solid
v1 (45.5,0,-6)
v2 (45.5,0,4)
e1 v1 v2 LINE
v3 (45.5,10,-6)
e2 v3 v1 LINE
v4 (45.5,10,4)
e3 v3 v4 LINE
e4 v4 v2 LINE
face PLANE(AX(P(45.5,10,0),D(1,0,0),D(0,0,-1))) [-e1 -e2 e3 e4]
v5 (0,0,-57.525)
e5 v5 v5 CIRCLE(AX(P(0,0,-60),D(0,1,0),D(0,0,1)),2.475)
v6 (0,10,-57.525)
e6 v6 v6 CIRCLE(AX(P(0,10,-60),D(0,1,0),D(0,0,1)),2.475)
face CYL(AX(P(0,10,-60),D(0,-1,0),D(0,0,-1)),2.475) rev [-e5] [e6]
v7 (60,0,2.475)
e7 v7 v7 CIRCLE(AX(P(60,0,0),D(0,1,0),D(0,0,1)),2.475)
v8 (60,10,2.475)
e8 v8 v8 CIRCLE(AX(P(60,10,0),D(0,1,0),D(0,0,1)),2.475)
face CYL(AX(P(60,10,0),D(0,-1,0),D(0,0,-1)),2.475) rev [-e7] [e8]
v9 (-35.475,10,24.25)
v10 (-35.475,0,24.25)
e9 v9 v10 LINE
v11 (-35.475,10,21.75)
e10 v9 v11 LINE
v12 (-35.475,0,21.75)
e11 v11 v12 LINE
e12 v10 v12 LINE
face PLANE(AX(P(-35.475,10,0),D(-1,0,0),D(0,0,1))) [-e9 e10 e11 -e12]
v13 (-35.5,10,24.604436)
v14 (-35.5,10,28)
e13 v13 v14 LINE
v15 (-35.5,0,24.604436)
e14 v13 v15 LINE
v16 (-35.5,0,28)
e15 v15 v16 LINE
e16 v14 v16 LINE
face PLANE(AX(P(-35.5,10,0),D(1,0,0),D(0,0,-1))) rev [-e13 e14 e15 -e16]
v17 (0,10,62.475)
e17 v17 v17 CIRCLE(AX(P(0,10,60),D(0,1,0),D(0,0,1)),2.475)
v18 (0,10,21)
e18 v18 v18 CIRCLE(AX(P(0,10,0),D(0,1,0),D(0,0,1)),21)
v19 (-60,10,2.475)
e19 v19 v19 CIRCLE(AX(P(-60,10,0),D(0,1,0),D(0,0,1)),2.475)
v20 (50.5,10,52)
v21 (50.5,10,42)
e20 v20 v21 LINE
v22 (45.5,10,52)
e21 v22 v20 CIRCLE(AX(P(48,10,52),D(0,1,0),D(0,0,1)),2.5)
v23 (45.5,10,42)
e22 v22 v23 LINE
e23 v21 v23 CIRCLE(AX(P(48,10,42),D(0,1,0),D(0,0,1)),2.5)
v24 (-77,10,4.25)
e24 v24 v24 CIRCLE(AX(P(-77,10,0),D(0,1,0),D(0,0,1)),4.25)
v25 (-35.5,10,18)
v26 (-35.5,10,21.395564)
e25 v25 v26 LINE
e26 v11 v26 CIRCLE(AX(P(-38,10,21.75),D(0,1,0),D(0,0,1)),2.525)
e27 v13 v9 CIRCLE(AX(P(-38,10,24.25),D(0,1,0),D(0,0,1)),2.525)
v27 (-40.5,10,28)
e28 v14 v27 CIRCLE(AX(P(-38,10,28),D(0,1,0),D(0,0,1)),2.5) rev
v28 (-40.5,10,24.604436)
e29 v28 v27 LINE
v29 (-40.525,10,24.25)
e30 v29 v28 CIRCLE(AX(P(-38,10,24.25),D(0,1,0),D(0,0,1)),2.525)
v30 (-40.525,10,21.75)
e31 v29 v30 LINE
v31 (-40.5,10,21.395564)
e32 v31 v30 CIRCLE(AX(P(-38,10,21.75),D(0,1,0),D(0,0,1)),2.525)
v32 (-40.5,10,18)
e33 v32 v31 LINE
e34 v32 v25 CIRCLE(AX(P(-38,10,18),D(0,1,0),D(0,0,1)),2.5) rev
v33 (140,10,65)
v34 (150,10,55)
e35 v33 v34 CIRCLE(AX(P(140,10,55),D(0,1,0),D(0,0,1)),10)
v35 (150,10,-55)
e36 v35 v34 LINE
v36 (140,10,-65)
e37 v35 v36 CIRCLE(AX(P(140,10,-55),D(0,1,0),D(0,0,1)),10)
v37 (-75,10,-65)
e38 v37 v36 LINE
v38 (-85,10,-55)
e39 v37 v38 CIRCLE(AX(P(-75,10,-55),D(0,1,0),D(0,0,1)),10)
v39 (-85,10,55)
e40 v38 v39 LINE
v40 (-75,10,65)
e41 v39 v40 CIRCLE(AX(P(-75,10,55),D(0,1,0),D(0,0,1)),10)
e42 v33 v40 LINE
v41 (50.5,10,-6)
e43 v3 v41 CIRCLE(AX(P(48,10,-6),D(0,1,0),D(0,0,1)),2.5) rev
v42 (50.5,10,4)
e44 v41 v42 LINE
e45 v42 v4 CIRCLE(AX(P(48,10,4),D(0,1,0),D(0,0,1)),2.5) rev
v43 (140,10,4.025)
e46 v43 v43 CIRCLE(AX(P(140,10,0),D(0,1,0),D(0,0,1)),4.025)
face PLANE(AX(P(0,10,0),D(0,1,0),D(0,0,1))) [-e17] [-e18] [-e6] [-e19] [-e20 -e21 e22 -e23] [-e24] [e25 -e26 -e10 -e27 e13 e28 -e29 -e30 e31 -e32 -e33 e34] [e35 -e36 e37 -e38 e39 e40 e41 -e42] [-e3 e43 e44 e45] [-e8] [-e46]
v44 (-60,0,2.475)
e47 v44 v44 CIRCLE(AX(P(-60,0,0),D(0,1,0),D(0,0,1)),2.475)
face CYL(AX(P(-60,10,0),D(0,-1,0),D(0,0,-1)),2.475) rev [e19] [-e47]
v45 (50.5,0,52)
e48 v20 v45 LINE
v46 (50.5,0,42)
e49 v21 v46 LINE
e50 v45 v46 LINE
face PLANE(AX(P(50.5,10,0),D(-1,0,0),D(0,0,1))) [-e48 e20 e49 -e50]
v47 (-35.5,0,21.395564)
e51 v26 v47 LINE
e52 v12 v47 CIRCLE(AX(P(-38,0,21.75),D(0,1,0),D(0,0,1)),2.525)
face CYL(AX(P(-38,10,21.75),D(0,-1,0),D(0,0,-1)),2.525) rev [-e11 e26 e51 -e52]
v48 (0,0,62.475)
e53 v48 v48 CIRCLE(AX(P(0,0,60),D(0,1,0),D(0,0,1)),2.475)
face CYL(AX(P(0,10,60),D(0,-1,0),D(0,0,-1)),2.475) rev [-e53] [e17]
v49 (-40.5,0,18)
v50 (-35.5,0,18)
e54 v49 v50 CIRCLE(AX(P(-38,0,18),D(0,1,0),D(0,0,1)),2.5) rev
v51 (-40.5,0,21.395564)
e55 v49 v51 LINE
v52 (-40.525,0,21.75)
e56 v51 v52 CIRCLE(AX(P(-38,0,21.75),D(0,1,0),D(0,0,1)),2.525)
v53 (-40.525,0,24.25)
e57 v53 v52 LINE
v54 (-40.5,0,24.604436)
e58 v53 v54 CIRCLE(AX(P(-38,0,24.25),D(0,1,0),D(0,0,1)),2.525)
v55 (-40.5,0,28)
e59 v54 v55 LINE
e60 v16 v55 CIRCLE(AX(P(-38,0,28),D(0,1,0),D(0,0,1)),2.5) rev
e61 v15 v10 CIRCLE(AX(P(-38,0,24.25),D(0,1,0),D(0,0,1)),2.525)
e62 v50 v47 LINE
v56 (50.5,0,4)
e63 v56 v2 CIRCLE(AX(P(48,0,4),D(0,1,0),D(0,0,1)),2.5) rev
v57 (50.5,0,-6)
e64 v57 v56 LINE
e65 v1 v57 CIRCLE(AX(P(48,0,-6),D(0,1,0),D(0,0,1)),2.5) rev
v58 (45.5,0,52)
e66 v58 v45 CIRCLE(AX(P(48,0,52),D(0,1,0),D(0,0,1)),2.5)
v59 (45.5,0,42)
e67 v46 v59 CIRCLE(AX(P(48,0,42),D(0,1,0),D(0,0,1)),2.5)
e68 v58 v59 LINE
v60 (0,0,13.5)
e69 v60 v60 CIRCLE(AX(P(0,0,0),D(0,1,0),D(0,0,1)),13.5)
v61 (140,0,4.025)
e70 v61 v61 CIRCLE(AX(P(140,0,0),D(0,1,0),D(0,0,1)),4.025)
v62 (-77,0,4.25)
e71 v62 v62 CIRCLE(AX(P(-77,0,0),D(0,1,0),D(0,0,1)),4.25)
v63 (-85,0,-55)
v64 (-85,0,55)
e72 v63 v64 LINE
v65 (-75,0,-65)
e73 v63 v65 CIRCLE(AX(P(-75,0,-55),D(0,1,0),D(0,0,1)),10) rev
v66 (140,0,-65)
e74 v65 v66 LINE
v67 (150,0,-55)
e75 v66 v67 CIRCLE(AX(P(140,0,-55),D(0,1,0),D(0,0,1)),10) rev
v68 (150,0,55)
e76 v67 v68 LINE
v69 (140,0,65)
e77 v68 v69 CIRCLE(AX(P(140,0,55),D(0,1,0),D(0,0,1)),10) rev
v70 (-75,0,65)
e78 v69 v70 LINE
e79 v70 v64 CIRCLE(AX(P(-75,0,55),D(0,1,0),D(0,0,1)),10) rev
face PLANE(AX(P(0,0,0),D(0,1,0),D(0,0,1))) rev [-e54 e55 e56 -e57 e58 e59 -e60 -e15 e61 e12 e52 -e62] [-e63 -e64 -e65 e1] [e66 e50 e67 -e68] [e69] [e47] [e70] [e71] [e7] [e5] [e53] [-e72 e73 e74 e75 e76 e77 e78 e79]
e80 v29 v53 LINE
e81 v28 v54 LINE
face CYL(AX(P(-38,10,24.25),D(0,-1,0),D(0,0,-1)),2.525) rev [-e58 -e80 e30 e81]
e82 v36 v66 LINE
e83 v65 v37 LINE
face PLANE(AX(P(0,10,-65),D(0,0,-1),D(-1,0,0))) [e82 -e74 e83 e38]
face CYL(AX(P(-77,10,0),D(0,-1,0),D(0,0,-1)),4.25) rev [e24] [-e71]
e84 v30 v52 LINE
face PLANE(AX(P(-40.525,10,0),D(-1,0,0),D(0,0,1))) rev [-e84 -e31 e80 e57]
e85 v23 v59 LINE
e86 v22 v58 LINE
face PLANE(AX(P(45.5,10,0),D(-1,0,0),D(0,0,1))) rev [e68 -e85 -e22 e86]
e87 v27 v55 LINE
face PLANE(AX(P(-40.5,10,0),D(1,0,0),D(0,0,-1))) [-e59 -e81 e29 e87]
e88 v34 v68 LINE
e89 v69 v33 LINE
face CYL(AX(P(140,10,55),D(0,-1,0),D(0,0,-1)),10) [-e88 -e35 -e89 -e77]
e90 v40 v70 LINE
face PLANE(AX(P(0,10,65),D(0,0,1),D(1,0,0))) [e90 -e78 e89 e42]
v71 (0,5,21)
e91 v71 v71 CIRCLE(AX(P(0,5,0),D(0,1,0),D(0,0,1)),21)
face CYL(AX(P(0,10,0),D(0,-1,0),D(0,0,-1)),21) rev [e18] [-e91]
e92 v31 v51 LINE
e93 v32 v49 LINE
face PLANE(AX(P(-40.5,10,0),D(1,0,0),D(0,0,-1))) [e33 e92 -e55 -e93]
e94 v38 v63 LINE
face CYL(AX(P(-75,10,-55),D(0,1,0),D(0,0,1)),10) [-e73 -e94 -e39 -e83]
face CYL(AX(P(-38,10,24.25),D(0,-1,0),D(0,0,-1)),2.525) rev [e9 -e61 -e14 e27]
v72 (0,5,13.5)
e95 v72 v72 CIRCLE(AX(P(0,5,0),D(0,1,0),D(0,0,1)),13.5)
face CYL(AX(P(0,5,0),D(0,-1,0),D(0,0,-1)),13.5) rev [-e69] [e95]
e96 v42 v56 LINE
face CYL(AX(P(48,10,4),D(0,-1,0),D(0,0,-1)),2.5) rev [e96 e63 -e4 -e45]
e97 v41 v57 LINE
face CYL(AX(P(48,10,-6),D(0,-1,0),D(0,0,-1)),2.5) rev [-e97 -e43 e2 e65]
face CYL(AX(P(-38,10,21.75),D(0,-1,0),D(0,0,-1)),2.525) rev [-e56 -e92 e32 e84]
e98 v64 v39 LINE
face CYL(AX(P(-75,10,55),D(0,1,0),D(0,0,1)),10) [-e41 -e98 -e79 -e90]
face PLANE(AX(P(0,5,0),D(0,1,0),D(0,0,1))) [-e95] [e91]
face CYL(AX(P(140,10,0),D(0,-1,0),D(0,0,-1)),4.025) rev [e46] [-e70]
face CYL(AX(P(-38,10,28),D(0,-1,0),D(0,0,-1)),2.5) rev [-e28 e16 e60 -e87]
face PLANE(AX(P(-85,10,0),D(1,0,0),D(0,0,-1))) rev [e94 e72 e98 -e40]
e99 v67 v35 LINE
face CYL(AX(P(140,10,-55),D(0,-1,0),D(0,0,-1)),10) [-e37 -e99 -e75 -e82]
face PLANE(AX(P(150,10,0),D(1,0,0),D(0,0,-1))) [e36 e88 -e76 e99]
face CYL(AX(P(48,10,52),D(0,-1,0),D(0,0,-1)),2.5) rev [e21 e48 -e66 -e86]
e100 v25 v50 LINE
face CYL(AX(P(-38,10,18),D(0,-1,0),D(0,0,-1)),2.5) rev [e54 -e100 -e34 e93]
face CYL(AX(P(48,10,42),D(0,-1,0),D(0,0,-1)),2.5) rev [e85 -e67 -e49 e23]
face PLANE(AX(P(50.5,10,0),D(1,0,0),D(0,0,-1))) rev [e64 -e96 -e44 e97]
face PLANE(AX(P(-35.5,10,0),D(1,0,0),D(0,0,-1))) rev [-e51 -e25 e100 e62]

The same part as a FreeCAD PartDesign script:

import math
import FreeCAD as App
import Part
import Sketcher
from FreeCAD import Vector
Q = App.Units.Quantity


def edges_at(feature, points):
    """Names of the edges that pass closest to the given points."""
    edges = feature.Shape.Edges
    near = lambda p: min(range(len(edges)), key=lambda i: edges[i].distToShape(Part.Vertex(*p))[0])
    return sorted({f"Edge{near(p) + 1}" for p in points})

doc = App.newDocument("Part")
params = doc.addObject("Spreadsheet::Sheet", "Params")
for row, (alias, value) in enumerate([
    ("sketch1_diameter", "42 mm"),
    ("sketch1_radius", "65 mm"),
    ("sketch1_radius2", "2.5 mm"),
    ("sketch1_diameter2", "4.95 mm"),
    ("sketch1_diameter3", "8.05 mm"),
    ("pad1_length", "10 mm"),
    ("sketch2_radius", "65 mm"),
    ("sketch2_diameter", "8.5 mm"),
    ("sketch2_width", "85 mm"),
    ("pad2_length", "10 mm"),
    ("sketch3_diameter", "42 mm"),
    ("sketch3_diameter2", "27 mm"),
    ("pad3_length", "5 mm"),
    ("fillet_radius", "10 mm"),
], start=1):
    params.set(f"A{row}", alias)
    params.set(f"B{row}", "=" + value)
    params.setAlias(f"B{row}", alias)

body = doc.addObject("PartDesign::Body", "Body")

# Sketch on XZ plane
sketch1 = body.newObject("Sketcher::SketchObject", "Sketch")
sketch1.AttachmentSupport = (doc.getObject("XZ_Plane"), [""])
sketch1.MapMode = "FlatFace"
sketch1.addGeometry(Part.ArcOfCircle(Part.Circle(Vector(0, 0, 0), Vector(0, 0, 1), 65), math.radians(90), math.radians(270)), False)
sketch1.addGeometry(Part.LineSegment(Vector(0, 65, 0), Vector(150, 65, 0)), False)
sketch1.addGeometry(Part.LineSegment(Vector(150, 65, 0), Vector(150, -65, 0)), False)
sketch1.addGeometry(Part.LineSegment(Vector(150, -65, 0), Vector(0, -65, 0)), False)
sketch1.addGeometry(Part.Circle(Vector(0, 60, 0), Vector(0, 0, 1), 2.48), False)
sketch1.addGeometry(Part.LineSegment(Vector(-40.5, 28, 0), Vector(-40.5, 24.6, 0)), False)
sketch1.addGeometry(Part.ArcOfCircle(Part.Circle(Vector(-38, 24.25, 0), Vector(0, 0, 1), 2.52), math.radians(171.93), math.radians(180)), False)
sketch1.addGeometry(Part.LineSegment(Vector(-40.52, 24.25, 0), Vector(-40.52, 21.75, 0)), False)
sketch1.addGeometry(Part.ArcOfCircle(Part.Circle(Vector(-38, 21.75, 0), Vector(0, 0, 1), 2.52), math.radians(180), math.radians(188.07)), False)
sketch1.addGeometry(Part.LineSegment(Vector(-40.5, 21.4, 0), Vector(-40.5, 18, 0)), False)
sketch1.addGeometry(Part.ArcOfCircle(Part.Circle(Vector(-38, 18, 0), Vector(0, 0, 1), 2.5), math.radians(180), math.radians(360)), False)
sketch1.addGeometry(Part.LineSegment(Vector(-35.5, 18, 0), Vector(-35.5, 21.4, 0)), False)
sketch1.addGeometry(Part.ArcOfCircle(Part.Circle(Vector(-38, 21.75, 0), Vector(0, 0, 1), 2.52), math.radians(-8.07), math.radians(0)), False)
sketch1.addGeometry(Part.LineSegment(Vector(-35.48, 21.75, 0), Vector(-35.48, 24.25, 0)), False)
sketch1.addGeometry(Part.ArcOfCircle(Part.Circle(Vector(-38, 24.25, 0), Vector(0, 0, 1), 2.52), math.radians(0), math.radians(8.07)), False)
sketch1.addGeometry(Part.LineSegment(Vector(-35.5, 24.6, 0), Vector(-35.5, 28, 0)), False)
sketch1.addGeometry(Part.ArcOfCircle(Part.Circle(Vector(-38, 28, 0), Vector(0, 0, 1), 2.5), math.radians(0), math.radians(180)), False)
sketch1.addGeometry(Part.LineSegment(Vector(45.5, 52, 0), Vector(45.5, 42, 0)), False)
sketch1.addGeometry(Part.ArcOfCircle(Part.Circle(Vector(48, 42, 0), Vector(0, 0, 1), 2.5), math.radians(180), math.radians(360)), False)
sketch1.addGeometry(Part.LineSegment(Vector(50.5, 42, 0), Vector(50.5, 52, 0)), False)
sketch1.addGeometry(Part.ArcOfCircle(Part.Circle(Vector(48, 52, 0), Vector(0, 0, 1), 2.5), math.radians(0), math.radians(180)), False)
sketch1.addGeometry(Part.Circle(Vector(-60, 0, 0), Vector(0, 0, 1), 2.48), False)
sketch1.addGeometry(Part.Circle(Vector(0, 0, 0), Vector(0, 0, 1), 21), False)
sketch1.addGeometry(Part.Circle(Vector(0, -60, 0), Vector(0, 0, 1), 2.48), False)
sketch1.addGeometry(Part.LineSegment(Vector(45.5, 4, 0), Vector(45.5, -6, 0)), False)
sketch1.addGeometry(Part.ArcOfCircle(Part.Circle(Vector(48, -6, 0), Vector(0, 0, 1), 2.5), math.radians(180), math.radians(360)), False)
sketch1.addGeometry(Part.LineSegment(Vector(50.5, -6, 0), Vector(50.5, 4, 0)), False)
sketch1.addGeometry(Part.ArcOfCircle(Part.Circle(Vector(48, 4, 0), Vector(0, 0, 1), 2.5), math.radians(0), math.radians(180)), False)
sketch1.addGeometry(Part.Circle(Vector(60, 0, 0), Vector(0, 0, 1), 2.48), False)
sketch1.addGeometry(Part.Circle(Vector(140, 0, 0), Vector(0, 0, 1), 4.03), False)
sketch1.addConstraint(Sketcher.Constraint("Tangent", 0, 1, 1, 1))
sketch1.addConstraint(Sketcher.Constraint("Coincident", 1, 2, 2, 1))
sketch1.addConstraint(Sketcher.Constraint("Coincident", 2, 2, 3, 1))
sketch1.addConstraint(Sketcher.Constraint("Tangent", 3, 2, 0, 2))
sketch1.addConstraint(Sketcher.Constraint("Coincident", 5, 2, 6, 1))
sketch1.addConstraint(Sketcher.Constraint("Tangent", 6, 2, 7, 1))
sketch1.addConstraint(Sketcher.Constraint("Tangent", 7, 2, 8, 1))
sketch1.addConstraint(Sketcher.Constraint("Coincident", 8, 2, 9, 1))
sketch1.addConstraint(Sketcher.Constraint("Tangent", 9, 2, 10, 1))
sketch1.addConstraint(Sketcher.Constraint("Tangent", 10, 2, 11, 1))
sketch1.addConstraint(Sketcher.Constraint("Coincident", 11, 2, 12, 1))
sketch1.addConstraint(Sketcher.Constraint("Tangent", 12, 2, 13, 1))
sketch1.addConstraint(Sketcher.Constraint("Tangent", 13, 2, 14, 1))
sketch1.addConstraint(Sketcher.Constraint("Coincident", 14, 2, 15, 1))
sketch1.addConstraint(Sketcher.Constraint("Tangent", 15, 2, 16, 1))
sketch1.addConstraint(Sketcher.Constraint("Tangent", 16, 2, 5, 1))
sketch1.addConstraint(Sketcher.Constraint("Tangent", 17, 2, 18, 1))
sketch1.addConstraint(Sketcher.Constraint("Tangent", 18, 2, 19, 1))
sketch1.addConstraint(Sketcher.Constraint("Tangent", 19, 2, 20, 1))
sketch1.addConstraint(Sketcher.Constraint("Tangent", 20, 2, 17, 1))
sketch1.addConstraint(Sketcher.Constraint("Tangent", 24, 2, 25, 1))
sketch1.addConstraint(Sketcher.Constraint("Tangent", 25, 2, 26, 1))
sketch1.addConstraint(Sketcher.Constraint("Tangent", 26, 2, 27, 1))
sketch1.addConstraint(Sketcher.Constraint("Tangent", 27, 2, 24, 1))
sketch1.addConstraint(Sketcher.Constraint("Horizontal", 1))
sketch1.addConstraint(Sketcher.Constraint("Vertical", 2))
sketch1.addConstraint(Sketcher.Constraint("Horizontal", 3))
sketch1.addConstraint(Sketcher.Constraint("Vertical", 5))
sketch1.addConstraint(Sketcher.Constraint("Vertical", 7))
sketch1.addConstraint(Sketcher.Constraint("Vertical", 9))
sketch1.addConstraint(Sketcher.Constraint("Vertical", 11))
sketch1.addConstraint(Sketcher.Constraint("Vertical", 13))
sketch1.addConstraint(Sketcher.Constraint("Vertical", 15))
sketch1.addConstraint(Sketcher.Constraint("Vertical", 17))
sketch1.addConstraint(Sketcher.Constraint("Vertical", 19))
sketch1.addConstraint(Sketcher.Constraint("Vertical", 24))
sketch1.addConstraint(Sketcher.Constraint("Vertical", 26))
sketch1.addConstraint(Sketcher.Constraint("Coincident", 0, 3, -1, 1))
sketch1.addConstraint(Sketcher.Constraint("Coincident", 22, 3, -1, 1))
sketch1.addConstraint(Sketcher.Constraint("Coincident", 12, 3, 8, 3))
sketch1.addConstraint(Sketcher.Constraint("Coincident", 14, 3, 6, 3))
sketch1.addConstraint(Sketcher.Constraint("Equal", 6, 8))
sketch1.addConstraint(Sketcher.Constraint("Equal", 8, 12))
sketch1.addConstraint(Sketcher.Constraint("Equal", 10, 16))
sketch1.addConstraint(Sketcher.Constraint("Equal", 16, 18))
sketch1.addConstraint(Sketcher.Constraint("Equal", 4, 21))
sketch1.addConstraint(Sketcher.Constraint("Equal", 21, 23))
sketch1.addConstraint(Sketcher.Constraint("Equal", 20, 25))
sketch1.addConstraint(Sketcher.Constraint("Equal", 23, 28))
sketch1.addConstraint(Sketcher.Constraint("Symmetric", 4, 3, 23, 3, -1, 1))
sketch1.addConstraint(Sketcher.Constraint("Symmetric", 21, 3, 28, 3, -1, 1))
sketch1.addConstraint(Sketcher.Constraint("PointOnObject", 4, 3, -2))
sketch1.addConstraint(Sketcher.Constraint("PointOnObject", 21, 3, -1))
sketch1.addConstraint(Sketcher.Constraint("PointOnObject", 29, 3, -1))
sketch1.addConstraint(Sketcher.Constraint("Horizontal", 8, 2, 11, 2))
sketch1.addConstraint(Sketcher.Constraint("Horizontal", 5, 2, 14, 2))
sketch1.addConstraint(Sketcher.Constraint("Vertical", 20, 3, 25, 3))
sketch1.addConstraint(Sketcher.Constraint("Equal", 5, 9))
sketch1.addConstraint(Sketcher.Constraint("Equal", 19, 24))
sketch1.addConstraint(Sketcher.Constraint("Diameter", 22, Q("42 mm")))
sketch1.addConstraint(Sketcher.Constraint("Radius", 0, Q("65 mm")))
sketch1.addConstraint(Sketcher.Constraint("Radius", 10, Q("2.5 mm")))
sketch1.addConstraint(Sketcher.Constraint("Diameter", 4, Q("4.95 mm")))
sketch1.addConstraint(Sketcher.Constraint("Diameter", 29, Q("8.05 mm")))
sketch1.addConstraint(Sketcher.Constraint("DistanceX", 1, 1, 1, 2, Q("150 mm")))
sketch1.addConstraint(Sketcher.Constraint("DistanceY", 17, 2, 17, 1, Q("10 mm")))
sketch1.addConstraint(Sketcher.Constraint("DistanceY", 7, 2, 7, 1, Q("2.5 mm")))
sketch1.addConstraint(Sketcher.Constraint("DistanceY", -1, 1, 4, 3, Q("60 mm")))
sketch1.addConstraint(Sketcher.Constraint("DistanceX", 6, 3, -1, 1, Q("38 mm")))
sketch1.addConstraint(Sketcher.Constraint("DistanceY", -1, 1, 10, 3, Q("18 mm")))
sketch1.addConstraint(Sketcher.Constraint("DistanceY", -1, 1, 16, 3, Q("28 mm")))
sketch1.addConstraint(Sketcher.Constraint("DistanceX", -1, 1, 18, 3, Q("48 mm")))
sketch1.addConstraint(Sketcher.Constraint("DistanceY", -1, 1, 18, 3, Q("42 mm")))
sketch1.addConstraint(Sketcher.Constraint("DistanceX", 21, 3, -1, 1, Q("60 mm")))
sketch1.addConstraint(Sketcher.Constraint("DistanceY", 25, 3, -1, 1, Q("6 mm")))
sketch1.addConstraint(Sketcher.Constraint("DistanceX", -1, 1, 29, 3, Q("140 mm")))
sketch1.addConstraint(Sketcher.Constraint("Radius", 6, Q("2.525 mm")))
sketch1.setExpression("Constraints[59]", "Params.sketch1_diameter")
sketch1.setExpression("Constraints[60]", "Params.sketch1_radius")
sketch1.setExpression("Constraints[61]", "Params.sketch1_radius2")
sketch1.setExpression("Constraints[62]", "Params.sketch1_diameter2")
sketch1.setExpression("Constraints[63]", "Params.sketch1_diameter3")
pad1 = body.newObject("PartDesign::Pad", "Pad")
pad1.Profile = sketch1
pad1.setExpression("Length", "Params.pad1_length")
pad1.Reversed = True

# Sketch on XZ plane
sketch2 = body.newObject("Sketcher::SketchObject", "Sketch001")
sketch2.AttachmentSupport = (doc.getObject("XZ_Plane"), [""])
sketch2.MapMode = "FlatFace"
sketch2.addGeometry(Part.ArcOfCircle(Part.Circle(Vector(0, 0, 0), Vector(0, 0, 1), 65), math.radians(90), math.radians(270)), False)
sketch2.addGeometry(Part.LineSegment(Vector(0, -65, 0), Vector(-85, -65, 0)), False)
sketch2.addGeometry(Part.LineSegment(Vector(-85, -65, 0), Vector(-85, 65, 0)), False)
sketch2.addGeometry(Part.LineSegment(Vector(-85, 65, 0), Vector(0, 65, 0)), False)
sketch2.addGeometry(Part.Circle(Vector(-77, 0, 0), Vector(0, 0, 1), 4.2), False)
sketch2.addConstraint(Sketcher.Constraint("Tangent", 0, 2, 1, 1))
sketch2.addConstraint(Sketcher.Constraint("Coincident", 1, 2, 2, 1))
sketch2.addConstraint(Sketcher.Constraint("Coincident", 2, 2, 3, 1))
sketch2.addConstraint(Sketcher.Constraint("Tangent", 3, 2, 0, 1))
sketch2.addConstraint(Sketcher.Constraint("Horizontal", 1))
sketch2.addConstraint(Sketcher.Constraint("Vertical", 2))
sketch2.addConstraint(Sketcher.Constraint("Horizontal", 3))
sketch2.addConstraint(Sketcher.Constraint("Coincident", 0, 3, -1, 1))
sketch2.addConstraint(Sketcher.Constraint("PointOnObject", 4, 3, -1))
sketch2.addConstraint(Sketcher.Constraint("Radius", 0, Q("65 mm")))
sketch2.addConstraint(Sketcher.Constraint("Diameter", 4, Q("8.5 mm")))
sketch2.addConstraint(Sketcher.Constraint("DistanceX", 1, 2, 1, 1, Q("85 mm")))
sketch2.addConstraint(Sketcher.Constraint("DistanceX", 4, 3, -1, 1, Q("77 mm")))
sketch2.setExpression("Constraints[9]", "Params.sketch2_radius")
sketch2.setExpression("Constraints[10]", "Params.sketch2_diameter")
sketch2.setExpression("Constraints[11]", "Params.sketch2_width")
pad2 = body.newObject("PartDesign::Pad", "Pad001")
pad2.Profile = sketch2
pad2.setExpression("Length", "Params.pad2_length")
pad2.Reversed = True

# Sketch on XZ plane
sketch3 = body.newObject("Sketcher::SketchObject", "Sketch002")
sketch3.AttachmentSupport = (doc.getObject("XZ_Plane"), [""])
sketch3.MapMode = "FlatFace"
sketch3.addGeometry(Part.Circle(Vector(0, 0, 0), Vector(0, 0, 1), 21), False)
sketch3.addGeometry(Part.Circle(Vector(0, 0, 0), Vector(0, 0, 1), 14), False)
sketch3.addConstraint(Sketcher.Constraint("Coincident", 0, 3, -1, 1))
sketch3.addConstraint(Sketcher.Constraint("Coincident", 1, 3, -1, 1))
sketch3.addConstraint(Sketcher.Constraint("Diameter", 0, Q("42 mm")))
sketch3.addConstraint(Sketcher.Constraint("Diameter", 1, Q("27 mm")))
sketch3.setExpression("Constraints[2]", "Params.sketch3_diameter")
sketch3.setExpression("Constraints[3]", "Params.sketch3_diameter2")
pad3 = body.newObject("PartDesign::Pad", "Pad002")
pad3.Profile = sketch3
pad3.setExpression("Length", "Params.pad3_length")
pad3.Reversed = True
doc.recompute()

fillet = body.newObject("PartDesign::Fillet", "Fillet")
fillet.Base = (pad3, edges_at(pad3, [
    (150, 5, -65),
    (150, 5, 65),
    (-85, 5, -65),
    (-85, 5, 65),
]))
fillet.setExpression("Radius", "Params.fillet_radius")

doc.recompute()
